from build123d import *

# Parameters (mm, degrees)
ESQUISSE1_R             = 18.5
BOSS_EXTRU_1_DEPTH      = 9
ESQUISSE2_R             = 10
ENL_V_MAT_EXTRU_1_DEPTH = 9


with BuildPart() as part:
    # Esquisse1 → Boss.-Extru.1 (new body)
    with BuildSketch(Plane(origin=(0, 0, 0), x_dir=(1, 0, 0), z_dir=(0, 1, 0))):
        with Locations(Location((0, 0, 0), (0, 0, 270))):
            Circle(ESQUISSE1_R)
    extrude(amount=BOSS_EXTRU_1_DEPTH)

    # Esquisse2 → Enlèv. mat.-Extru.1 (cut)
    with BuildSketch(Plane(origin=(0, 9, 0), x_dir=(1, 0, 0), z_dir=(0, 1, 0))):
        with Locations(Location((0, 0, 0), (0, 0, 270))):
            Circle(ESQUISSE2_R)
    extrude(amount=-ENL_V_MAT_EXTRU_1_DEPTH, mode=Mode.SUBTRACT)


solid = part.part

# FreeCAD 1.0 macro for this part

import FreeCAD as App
import Part
import Sketcher
from FreeCAD import Vector

doc = App.newDocument("Part")
body = doc.addObject("PartDesign::Body", "Body")

sketch1 = body.newObject("Sketcher::SketchObject", "Sketch")
sketch1.AttachmentSupport = (doc.getObject("XZ_Plane"), [""])
sketch1.MapMode = "FlatFace"
sketch1.addGeometry(Part.Circle(Vector(0, 0, 0), Vector(0, 0, 1), 18), False)
sketch1.addConstraint(Sketcher.Constraint("Coincident", 0, 3, -1, 1))
sketch1.addConstraint(Sketcher.Constraint("Diameter", 0, 37.0))
pad1 = body.newObject("PartDesign::Pad", "Pad")
pad1.Profile = sketch1
pad1.Length = 9
pad1.Reversed = True

sketch2 = body.newObject("Sketcher::SketchObject", "Sketch001")
sketch2.AttachmentSupport = (doc.getObject("XZ_Plane"), [""])
sketch2.MapMode = "FlatFace"
sketch2.AttachmentOffset = App.Placement(Vector(0, 0, -9), App.Rotation())
sketch2.addGeometry(Part.Circle(Vector(0, 0, 0), Vector(0, 0, 1), 10), False)
sketch2.addConstraint(Sketcher.Constraint("Coincident", 0, 3, -1, 1))
sketch2.addConstraint(Sketcher.Constraint("Diameter", 0, 20.0))
pocket1 = body.newObject("PartDesign::Pocket", "Pocket")
pocket1.Profile = sketch2
pocket1.Length = 9
pocket1.Reversed = True

doc.recompute()
